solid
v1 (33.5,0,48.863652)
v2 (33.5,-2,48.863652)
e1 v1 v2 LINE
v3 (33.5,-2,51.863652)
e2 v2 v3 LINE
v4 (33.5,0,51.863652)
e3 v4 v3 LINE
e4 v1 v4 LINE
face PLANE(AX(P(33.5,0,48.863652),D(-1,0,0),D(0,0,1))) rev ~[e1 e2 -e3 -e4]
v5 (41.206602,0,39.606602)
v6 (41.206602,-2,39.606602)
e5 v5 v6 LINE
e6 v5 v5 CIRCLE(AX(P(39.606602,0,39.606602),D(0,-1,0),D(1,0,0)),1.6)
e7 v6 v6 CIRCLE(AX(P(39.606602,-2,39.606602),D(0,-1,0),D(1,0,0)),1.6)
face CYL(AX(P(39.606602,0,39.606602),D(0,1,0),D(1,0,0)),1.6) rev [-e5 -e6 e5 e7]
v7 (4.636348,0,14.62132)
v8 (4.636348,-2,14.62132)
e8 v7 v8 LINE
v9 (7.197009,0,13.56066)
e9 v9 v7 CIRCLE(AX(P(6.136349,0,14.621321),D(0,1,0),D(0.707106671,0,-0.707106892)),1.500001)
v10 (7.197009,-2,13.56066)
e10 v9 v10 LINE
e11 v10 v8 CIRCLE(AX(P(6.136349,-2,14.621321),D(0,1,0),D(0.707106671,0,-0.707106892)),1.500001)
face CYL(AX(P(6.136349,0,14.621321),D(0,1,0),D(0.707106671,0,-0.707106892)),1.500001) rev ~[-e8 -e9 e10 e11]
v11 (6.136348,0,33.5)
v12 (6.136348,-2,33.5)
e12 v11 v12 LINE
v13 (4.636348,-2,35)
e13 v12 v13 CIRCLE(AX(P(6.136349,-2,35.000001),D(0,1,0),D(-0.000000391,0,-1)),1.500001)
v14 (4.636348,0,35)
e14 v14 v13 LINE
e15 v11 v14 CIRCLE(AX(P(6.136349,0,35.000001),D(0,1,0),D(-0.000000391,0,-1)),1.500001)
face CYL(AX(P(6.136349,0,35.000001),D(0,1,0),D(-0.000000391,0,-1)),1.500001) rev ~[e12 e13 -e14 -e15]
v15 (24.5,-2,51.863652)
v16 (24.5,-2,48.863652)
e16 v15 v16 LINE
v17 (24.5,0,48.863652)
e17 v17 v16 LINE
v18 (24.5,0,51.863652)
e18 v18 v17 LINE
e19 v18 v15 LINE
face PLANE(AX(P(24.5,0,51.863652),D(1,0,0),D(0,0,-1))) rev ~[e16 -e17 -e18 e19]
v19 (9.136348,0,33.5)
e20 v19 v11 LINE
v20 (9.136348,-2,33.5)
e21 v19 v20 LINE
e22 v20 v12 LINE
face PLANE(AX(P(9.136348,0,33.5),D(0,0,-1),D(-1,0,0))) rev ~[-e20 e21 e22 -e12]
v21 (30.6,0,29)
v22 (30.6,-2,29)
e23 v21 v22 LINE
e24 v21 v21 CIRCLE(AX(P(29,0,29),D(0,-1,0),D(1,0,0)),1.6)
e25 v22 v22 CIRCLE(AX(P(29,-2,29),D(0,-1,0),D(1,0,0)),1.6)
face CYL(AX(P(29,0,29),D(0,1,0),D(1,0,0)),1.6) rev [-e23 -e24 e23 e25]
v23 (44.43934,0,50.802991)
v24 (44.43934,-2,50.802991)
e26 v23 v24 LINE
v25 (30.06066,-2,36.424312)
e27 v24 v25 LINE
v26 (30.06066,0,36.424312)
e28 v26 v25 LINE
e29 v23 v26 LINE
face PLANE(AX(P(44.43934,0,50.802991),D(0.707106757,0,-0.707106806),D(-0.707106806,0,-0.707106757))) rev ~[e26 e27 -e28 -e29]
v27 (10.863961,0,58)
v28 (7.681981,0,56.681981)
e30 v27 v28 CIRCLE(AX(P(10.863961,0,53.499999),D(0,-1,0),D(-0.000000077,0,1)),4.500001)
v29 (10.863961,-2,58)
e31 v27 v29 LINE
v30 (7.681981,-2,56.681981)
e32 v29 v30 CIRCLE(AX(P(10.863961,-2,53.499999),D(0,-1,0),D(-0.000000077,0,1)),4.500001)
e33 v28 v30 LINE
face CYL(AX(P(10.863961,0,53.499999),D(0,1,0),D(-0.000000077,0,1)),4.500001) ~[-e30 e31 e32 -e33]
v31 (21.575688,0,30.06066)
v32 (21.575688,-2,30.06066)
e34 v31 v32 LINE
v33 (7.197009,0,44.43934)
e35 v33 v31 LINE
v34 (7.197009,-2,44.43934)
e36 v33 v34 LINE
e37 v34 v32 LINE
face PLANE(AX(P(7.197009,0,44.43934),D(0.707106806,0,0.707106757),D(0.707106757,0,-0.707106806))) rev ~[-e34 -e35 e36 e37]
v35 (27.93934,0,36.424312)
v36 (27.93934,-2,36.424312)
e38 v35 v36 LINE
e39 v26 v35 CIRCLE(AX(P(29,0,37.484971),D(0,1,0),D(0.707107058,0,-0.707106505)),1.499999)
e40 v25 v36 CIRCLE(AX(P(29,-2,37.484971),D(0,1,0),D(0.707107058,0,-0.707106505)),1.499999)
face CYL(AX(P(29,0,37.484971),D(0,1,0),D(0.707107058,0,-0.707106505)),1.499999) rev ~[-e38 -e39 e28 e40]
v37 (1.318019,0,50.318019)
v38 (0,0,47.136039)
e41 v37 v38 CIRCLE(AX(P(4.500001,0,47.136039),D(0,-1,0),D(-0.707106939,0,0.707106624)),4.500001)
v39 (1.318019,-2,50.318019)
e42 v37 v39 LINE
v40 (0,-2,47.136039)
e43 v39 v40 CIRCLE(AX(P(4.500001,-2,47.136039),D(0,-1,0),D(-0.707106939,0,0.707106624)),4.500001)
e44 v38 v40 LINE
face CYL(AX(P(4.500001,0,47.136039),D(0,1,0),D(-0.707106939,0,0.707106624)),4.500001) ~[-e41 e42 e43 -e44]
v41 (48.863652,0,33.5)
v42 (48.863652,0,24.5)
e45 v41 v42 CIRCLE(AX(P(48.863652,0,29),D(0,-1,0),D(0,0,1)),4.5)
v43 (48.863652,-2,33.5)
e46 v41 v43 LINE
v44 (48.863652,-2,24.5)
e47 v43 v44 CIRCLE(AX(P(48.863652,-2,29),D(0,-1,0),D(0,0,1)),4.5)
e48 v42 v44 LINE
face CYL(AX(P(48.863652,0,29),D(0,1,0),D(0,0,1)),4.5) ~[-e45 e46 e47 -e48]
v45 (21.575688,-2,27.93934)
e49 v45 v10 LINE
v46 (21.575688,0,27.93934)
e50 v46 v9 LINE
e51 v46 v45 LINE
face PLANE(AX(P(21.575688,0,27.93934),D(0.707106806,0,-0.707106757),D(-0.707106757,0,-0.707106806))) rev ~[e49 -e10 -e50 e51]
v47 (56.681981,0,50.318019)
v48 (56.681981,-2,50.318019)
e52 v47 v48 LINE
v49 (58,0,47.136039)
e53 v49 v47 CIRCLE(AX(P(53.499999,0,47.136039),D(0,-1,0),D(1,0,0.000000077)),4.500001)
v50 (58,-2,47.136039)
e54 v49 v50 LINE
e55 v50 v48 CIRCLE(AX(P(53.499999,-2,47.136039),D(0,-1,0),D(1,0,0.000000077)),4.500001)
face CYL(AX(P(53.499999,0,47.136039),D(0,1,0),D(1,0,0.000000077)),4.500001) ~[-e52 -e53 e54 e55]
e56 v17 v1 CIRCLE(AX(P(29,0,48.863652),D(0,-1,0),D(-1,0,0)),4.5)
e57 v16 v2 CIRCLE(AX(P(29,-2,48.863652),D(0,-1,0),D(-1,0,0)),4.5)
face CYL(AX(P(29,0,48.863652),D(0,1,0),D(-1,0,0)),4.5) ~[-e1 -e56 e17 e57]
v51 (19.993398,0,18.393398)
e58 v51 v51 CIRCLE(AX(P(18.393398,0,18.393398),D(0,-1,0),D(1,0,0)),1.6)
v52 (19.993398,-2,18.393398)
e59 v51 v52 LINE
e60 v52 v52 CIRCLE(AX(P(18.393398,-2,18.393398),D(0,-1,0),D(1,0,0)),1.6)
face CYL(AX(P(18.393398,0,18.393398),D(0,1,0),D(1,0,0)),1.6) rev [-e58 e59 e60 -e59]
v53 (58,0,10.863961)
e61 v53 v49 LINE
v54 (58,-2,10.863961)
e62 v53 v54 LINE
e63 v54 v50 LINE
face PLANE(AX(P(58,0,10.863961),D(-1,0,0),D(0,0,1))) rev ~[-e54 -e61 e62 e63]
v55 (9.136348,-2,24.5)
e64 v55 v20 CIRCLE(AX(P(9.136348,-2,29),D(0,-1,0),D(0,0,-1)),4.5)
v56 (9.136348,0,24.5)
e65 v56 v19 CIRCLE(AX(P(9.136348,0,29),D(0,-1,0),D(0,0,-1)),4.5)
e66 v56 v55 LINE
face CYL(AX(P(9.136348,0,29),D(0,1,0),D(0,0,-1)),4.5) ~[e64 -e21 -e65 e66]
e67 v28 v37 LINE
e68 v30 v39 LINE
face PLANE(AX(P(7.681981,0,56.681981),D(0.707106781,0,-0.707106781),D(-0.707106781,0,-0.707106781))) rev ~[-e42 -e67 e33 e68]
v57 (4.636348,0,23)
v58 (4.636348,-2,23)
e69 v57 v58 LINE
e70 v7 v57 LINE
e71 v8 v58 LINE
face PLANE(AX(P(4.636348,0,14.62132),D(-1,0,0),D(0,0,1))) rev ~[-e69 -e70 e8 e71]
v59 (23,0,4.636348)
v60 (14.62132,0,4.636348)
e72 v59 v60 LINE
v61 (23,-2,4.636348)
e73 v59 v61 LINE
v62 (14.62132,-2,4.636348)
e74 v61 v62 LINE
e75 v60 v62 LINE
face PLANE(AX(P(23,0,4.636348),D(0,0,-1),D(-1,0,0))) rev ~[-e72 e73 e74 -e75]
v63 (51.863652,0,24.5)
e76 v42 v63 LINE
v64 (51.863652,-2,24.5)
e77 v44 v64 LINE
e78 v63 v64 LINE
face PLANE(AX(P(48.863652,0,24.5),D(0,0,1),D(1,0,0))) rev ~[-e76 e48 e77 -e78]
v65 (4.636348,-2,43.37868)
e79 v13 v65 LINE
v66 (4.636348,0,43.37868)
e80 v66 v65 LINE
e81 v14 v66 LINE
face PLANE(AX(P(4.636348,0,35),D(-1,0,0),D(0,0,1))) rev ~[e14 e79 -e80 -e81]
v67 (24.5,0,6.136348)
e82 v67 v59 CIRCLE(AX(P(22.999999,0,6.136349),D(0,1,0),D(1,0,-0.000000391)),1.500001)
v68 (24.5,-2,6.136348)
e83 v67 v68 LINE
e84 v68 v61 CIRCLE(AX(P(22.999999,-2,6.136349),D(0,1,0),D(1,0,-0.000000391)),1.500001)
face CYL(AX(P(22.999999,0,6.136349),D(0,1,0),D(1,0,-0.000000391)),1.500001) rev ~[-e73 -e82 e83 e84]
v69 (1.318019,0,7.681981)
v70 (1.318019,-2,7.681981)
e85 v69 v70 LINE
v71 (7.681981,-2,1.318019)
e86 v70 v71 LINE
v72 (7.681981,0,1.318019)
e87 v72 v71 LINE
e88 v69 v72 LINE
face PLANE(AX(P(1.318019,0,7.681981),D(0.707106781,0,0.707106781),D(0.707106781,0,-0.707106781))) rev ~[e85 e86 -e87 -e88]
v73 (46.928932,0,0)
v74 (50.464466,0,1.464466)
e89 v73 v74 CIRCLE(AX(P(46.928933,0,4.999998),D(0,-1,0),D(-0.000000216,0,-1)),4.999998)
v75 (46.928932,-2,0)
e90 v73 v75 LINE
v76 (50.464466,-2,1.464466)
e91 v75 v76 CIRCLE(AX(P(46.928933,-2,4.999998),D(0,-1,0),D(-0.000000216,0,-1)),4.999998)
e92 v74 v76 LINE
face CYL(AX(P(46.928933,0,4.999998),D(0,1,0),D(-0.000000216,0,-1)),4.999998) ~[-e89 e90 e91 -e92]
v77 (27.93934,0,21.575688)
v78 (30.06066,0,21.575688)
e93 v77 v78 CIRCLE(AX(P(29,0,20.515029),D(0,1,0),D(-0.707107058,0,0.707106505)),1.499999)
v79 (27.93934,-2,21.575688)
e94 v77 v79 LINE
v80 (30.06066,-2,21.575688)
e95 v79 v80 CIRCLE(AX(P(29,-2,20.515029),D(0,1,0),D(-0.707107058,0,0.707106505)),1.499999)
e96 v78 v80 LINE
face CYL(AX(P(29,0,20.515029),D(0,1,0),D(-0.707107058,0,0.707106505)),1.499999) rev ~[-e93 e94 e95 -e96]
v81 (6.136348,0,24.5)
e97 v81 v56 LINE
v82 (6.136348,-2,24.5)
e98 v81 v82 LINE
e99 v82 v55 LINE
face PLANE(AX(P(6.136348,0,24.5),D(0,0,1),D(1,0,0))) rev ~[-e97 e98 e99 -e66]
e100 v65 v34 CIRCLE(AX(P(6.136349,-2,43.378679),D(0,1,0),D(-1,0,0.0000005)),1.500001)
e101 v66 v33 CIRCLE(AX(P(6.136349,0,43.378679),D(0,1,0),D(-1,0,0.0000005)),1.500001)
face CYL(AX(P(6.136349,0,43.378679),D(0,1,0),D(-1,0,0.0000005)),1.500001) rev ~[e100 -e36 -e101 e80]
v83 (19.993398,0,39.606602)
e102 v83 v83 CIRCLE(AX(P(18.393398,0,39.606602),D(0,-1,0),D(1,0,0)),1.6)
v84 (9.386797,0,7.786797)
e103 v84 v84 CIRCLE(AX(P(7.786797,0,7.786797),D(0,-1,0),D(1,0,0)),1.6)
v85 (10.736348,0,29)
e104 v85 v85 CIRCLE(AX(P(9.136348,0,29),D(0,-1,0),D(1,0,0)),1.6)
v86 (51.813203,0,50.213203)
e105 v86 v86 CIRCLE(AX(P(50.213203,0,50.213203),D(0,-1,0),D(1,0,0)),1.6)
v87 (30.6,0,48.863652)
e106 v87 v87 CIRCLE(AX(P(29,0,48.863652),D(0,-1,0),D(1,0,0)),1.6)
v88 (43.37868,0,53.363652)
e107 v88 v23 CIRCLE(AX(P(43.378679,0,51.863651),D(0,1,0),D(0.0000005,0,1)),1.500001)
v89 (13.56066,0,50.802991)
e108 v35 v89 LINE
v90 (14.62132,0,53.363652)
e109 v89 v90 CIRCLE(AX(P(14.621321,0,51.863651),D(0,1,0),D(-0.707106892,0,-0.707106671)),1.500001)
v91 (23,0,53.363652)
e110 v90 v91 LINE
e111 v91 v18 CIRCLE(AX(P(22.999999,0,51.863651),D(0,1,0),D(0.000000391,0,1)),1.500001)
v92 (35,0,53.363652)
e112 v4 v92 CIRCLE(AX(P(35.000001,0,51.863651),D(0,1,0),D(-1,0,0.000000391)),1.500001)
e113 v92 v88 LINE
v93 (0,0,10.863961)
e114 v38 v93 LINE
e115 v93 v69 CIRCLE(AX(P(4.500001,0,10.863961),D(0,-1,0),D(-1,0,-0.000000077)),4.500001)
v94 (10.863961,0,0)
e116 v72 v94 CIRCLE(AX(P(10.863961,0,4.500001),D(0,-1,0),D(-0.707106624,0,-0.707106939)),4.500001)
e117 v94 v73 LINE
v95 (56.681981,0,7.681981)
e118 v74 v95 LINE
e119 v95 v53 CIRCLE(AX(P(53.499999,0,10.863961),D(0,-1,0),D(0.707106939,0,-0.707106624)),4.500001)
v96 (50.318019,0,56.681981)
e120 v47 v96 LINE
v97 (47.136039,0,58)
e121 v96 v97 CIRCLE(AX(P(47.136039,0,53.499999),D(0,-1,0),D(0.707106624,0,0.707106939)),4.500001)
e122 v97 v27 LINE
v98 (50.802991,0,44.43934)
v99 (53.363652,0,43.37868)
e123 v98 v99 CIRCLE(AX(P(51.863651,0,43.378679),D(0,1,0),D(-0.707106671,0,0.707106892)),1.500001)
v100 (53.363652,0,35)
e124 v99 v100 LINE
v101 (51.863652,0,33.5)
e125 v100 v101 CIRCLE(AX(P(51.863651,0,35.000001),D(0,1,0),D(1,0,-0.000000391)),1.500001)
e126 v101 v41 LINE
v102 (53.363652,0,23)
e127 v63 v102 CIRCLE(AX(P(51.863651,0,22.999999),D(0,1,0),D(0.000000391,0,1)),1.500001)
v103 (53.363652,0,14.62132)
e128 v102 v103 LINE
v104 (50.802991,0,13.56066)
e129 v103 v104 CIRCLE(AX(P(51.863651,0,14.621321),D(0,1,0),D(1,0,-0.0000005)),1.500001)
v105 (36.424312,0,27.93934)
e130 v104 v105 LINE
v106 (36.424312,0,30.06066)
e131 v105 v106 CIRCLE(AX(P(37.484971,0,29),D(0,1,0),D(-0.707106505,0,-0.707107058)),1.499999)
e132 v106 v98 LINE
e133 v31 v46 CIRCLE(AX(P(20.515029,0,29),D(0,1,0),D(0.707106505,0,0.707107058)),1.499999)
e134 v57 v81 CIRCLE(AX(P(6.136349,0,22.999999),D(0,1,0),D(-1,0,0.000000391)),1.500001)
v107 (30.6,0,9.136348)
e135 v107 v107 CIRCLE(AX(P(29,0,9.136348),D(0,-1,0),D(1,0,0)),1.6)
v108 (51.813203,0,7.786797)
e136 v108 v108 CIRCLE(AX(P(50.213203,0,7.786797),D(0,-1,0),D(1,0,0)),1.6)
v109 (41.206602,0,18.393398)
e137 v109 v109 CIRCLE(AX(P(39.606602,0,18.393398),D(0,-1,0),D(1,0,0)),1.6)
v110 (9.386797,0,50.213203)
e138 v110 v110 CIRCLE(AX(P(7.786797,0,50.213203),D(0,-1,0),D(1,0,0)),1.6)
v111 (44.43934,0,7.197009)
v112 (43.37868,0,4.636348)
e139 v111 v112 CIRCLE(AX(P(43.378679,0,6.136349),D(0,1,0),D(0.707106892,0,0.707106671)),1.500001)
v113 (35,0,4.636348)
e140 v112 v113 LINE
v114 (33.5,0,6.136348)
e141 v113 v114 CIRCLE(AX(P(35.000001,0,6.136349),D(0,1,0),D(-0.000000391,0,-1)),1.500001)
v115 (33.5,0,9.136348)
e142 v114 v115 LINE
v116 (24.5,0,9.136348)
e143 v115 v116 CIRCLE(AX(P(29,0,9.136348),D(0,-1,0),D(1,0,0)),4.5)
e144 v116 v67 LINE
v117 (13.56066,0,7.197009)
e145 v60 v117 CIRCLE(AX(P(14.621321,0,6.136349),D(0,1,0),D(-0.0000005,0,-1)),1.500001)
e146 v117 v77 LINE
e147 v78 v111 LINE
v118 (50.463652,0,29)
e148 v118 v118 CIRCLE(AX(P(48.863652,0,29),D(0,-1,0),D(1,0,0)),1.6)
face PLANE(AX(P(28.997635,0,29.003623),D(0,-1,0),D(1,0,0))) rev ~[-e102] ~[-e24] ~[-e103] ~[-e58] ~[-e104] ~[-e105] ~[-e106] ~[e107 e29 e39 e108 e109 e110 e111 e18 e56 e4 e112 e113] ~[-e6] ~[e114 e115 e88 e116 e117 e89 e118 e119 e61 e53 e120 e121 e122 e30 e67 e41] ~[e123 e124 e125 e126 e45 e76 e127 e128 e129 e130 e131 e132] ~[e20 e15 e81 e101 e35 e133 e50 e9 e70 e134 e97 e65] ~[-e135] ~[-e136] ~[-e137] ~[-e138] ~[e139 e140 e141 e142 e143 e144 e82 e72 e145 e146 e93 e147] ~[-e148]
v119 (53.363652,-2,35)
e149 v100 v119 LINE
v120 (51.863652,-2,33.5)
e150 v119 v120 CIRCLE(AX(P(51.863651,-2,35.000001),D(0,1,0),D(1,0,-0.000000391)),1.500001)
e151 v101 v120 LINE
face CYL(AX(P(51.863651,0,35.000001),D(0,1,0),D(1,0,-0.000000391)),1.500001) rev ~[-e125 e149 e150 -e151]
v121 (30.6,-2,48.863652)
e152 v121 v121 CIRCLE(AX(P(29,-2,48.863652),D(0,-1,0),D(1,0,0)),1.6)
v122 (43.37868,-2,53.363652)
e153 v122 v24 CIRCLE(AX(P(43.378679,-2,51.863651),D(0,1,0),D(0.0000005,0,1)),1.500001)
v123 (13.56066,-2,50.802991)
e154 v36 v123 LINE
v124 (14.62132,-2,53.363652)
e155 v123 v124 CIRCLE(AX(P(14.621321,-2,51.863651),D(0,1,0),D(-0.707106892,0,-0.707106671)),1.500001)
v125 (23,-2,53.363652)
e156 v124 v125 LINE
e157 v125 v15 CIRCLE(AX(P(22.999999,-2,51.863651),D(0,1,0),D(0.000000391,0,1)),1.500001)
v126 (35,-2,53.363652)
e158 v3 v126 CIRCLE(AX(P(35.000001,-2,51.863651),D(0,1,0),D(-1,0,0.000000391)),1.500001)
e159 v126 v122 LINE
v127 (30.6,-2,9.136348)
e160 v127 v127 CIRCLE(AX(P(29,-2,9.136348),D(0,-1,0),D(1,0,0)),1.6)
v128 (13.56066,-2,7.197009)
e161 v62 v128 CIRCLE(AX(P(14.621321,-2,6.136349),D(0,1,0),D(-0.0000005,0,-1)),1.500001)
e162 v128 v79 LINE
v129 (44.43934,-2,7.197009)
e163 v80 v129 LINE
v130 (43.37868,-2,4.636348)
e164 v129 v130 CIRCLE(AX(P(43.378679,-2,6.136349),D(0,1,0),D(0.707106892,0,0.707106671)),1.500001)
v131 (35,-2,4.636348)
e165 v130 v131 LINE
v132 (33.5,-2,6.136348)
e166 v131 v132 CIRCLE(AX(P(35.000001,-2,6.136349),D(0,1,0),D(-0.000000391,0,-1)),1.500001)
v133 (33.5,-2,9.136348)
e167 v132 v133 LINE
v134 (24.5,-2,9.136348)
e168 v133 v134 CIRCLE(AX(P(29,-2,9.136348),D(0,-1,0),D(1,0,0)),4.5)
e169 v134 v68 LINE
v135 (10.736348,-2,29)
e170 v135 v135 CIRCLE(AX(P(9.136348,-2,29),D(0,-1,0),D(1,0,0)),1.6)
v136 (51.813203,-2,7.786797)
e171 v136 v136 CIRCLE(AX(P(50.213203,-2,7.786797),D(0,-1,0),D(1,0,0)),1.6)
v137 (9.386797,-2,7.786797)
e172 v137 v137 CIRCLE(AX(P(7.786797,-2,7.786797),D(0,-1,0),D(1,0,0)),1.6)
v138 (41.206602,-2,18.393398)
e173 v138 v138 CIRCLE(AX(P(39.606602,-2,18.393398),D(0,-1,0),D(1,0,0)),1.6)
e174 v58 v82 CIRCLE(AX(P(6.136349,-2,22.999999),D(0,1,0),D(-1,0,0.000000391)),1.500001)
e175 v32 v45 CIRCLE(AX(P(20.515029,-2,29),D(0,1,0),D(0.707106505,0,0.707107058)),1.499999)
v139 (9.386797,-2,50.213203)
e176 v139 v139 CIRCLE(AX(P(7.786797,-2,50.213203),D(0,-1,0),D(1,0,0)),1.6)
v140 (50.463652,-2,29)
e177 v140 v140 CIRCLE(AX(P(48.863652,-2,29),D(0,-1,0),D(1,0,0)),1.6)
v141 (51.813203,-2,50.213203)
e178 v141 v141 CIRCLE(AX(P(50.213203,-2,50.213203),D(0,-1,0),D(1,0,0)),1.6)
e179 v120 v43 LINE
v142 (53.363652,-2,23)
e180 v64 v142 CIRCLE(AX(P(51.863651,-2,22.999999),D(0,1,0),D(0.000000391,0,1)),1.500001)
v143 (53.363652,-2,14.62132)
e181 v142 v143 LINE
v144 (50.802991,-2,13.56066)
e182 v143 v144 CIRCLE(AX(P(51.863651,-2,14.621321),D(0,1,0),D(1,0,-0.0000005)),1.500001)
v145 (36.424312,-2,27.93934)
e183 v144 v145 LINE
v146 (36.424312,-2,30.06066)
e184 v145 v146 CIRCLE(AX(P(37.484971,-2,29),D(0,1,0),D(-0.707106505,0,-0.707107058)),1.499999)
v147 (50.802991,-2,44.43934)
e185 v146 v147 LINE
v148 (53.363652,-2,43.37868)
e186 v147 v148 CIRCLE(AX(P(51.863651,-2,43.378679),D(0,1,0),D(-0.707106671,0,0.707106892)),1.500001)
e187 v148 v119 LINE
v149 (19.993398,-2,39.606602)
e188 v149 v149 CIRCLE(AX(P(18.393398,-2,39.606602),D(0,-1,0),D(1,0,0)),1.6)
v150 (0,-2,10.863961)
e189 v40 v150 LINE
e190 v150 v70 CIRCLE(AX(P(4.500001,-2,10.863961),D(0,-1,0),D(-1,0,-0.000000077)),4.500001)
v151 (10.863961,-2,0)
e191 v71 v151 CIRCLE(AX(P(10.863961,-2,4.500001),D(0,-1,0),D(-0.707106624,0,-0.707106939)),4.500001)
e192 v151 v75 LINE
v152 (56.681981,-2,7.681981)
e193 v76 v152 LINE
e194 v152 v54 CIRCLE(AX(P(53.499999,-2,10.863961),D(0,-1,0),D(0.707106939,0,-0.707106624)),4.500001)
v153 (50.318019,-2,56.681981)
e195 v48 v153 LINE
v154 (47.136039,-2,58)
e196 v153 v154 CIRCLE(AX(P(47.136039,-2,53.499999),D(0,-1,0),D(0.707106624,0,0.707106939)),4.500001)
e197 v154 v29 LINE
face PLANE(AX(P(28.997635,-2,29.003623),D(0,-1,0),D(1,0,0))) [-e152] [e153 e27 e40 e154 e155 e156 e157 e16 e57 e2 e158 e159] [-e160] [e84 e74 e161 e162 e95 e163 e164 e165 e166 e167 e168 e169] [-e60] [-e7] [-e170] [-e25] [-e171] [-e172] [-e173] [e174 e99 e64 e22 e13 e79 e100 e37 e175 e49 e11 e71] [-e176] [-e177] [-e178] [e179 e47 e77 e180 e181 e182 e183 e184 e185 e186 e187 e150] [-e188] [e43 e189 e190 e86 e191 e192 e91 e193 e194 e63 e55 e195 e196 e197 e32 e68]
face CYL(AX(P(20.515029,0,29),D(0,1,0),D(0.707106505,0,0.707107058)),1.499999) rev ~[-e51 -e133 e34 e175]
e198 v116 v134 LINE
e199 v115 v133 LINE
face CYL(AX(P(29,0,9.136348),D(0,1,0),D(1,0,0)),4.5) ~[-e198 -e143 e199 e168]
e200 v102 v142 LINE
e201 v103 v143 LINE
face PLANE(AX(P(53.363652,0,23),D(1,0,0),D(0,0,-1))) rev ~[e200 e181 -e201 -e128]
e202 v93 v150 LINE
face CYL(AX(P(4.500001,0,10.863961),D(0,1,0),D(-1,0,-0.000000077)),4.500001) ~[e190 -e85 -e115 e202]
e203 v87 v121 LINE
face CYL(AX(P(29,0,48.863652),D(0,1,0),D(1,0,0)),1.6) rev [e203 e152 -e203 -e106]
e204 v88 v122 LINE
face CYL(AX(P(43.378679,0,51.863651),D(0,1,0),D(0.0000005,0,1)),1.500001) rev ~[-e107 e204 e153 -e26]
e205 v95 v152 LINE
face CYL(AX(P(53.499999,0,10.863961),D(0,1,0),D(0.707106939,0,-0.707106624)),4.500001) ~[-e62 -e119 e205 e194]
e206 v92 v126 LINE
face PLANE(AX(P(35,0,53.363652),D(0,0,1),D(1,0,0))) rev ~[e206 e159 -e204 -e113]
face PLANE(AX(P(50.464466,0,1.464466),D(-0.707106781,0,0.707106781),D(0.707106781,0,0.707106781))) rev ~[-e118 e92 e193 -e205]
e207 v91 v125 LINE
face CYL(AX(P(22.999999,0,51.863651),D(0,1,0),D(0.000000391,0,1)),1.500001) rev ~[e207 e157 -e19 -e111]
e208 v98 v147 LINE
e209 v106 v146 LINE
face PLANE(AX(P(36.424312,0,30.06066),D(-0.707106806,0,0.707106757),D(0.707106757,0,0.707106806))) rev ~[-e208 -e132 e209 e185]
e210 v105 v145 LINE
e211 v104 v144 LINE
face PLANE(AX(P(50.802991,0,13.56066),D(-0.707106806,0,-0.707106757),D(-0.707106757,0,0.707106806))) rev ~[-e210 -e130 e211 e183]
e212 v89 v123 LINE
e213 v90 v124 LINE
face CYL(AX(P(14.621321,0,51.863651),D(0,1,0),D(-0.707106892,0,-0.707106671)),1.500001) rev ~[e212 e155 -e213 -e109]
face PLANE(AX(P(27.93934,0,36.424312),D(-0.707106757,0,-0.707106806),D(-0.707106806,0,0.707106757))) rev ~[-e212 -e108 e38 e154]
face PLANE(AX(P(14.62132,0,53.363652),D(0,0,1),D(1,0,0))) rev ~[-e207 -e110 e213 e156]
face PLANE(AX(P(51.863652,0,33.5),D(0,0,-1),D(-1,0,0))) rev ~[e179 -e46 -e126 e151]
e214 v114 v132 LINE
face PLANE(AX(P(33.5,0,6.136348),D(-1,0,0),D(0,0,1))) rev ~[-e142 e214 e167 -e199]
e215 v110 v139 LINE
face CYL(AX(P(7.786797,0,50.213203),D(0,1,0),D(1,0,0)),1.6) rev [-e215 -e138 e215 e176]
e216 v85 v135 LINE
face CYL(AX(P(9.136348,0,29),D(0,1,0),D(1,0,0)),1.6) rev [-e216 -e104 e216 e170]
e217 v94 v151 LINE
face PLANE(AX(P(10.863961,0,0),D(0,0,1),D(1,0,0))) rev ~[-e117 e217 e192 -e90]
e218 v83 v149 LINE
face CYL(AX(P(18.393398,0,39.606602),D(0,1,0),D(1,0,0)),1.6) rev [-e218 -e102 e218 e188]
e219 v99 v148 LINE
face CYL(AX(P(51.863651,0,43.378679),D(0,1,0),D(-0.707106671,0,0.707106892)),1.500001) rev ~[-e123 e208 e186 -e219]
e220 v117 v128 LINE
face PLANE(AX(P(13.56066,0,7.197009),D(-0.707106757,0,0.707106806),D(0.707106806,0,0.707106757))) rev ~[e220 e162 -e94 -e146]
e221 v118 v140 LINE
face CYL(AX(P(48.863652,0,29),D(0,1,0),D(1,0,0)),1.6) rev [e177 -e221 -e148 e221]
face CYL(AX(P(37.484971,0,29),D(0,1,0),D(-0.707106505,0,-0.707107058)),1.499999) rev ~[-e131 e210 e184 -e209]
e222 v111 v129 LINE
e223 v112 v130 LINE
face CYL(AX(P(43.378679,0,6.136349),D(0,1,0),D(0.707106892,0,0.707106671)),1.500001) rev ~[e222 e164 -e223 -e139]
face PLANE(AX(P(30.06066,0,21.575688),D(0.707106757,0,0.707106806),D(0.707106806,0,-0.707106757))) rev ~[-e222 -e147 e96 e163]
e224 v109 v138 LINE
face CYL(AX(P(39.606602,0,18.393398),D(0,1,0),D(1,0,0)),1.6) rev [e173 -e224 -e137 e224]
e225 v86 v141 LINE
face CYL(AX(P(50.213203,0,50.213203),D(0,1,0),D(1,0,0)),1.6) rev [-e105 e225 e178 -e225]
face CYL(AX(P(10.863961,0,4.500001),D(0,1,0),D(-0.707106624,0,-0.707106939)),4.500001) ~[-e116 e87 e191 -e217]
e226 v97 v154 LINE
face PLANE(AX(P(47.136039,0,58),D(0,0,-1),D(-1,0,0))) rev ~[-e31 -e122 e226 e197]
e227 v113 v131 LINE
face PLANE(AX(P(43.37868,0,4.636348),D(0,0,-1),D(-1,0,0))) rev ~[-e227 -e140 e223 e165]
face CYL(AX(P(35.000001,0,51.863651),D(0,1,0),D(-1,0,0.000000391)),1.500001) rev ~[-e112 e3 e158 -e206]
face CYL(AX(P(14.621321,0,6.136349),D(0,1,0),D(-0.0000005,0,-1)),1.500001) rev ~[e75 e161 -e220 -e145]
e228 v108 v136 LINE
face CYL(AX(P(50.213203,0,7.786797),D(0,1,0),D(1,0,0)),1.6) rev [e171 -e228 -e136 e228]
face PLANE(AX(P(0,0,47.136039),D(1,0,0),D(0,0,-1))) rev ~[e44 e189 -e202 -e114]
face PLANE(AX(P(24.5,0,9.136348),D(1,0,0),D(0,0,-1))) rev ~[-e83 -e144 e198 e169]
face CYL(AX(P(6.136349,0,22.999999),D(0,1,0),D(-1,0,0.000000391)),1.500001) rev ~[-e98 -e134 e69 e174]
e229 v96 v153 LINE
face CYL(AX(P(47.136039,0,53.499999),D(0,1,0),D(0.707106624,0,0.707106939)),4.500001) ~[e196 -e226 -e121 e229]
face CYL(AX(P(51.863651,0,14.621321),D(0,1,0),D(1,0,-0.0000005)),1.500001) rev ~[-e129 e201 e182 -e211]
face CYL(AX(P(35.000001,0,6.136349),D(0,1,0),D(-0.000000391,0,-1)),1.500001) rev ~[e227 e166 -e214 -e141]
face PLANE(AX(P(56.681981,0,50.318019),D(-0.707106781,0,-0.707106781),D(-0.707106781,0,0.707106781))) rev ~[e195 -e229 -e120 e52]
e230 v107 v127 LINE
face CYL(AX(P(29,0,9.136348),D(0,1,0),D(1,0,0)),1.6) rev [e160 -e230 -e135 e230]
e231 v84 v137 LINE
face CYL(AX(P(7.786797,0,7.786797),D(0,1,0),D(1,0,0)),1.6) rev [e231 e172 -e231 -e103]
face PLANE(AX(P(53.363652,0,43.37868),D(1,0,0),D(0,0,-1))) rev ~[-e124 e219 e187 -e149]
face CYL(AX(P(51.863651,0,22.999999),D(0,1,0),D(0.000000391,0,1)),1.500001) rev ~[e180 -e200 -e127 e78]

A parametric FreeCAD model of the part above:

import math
import FreeCAD as App
import Part
import Sketcher

doc = App.newDocument("Part")
body = doc.addObject("PartDesign::Body", "Body")

# Sketch on XZ plane
sketch1 = body.newObject("Sketcher::SketchObject", "Sketch")
sketch1.AttachmentSupport = (doc.getObject("XZ_Plane"), [""])
sketch1.MapMode = "FlatFace"
sketch1.addGeometry(Part.LineSegment(App.Vector(47.1, 58, 0), App.Vector(10.9, 58, 0)), False)
sketch1.addGeometry(Part.ArcOfCircle(Part.Circle(App.Vector(10.9, 53.5, 0), App.Vector(0, 0, 1), 4.5), math.radians(90), math.radians(135)), False)
sketch1.addGeometry(Part.LineSegment(App.Vector(7.7, 56.7, 0), App.Vector(1.3, 50.3, 0)), False)
sketch1.addGeometry(Part.ArcOfCircle(Part.Circle(App.Vector(4.5, 47.1, 0), App.Vector(0, 0, 1), 4.5), math.radians(135), math.radians(180)), False)
sketch1.addGeometry(Part.LineSegment(App.Vector(0, 47.1, 0), App.Vector(0, 10.9, 0)), False)
sketch1.addGeometry(Part.ArcOfCircle(Part.Circle(App.Vector(4.5, 10.9, 0), App.Vector(0, 0, 1), 4.5), math.radians(-180), math.radians(-135)), False)
sketch1.addGeometry(Part.LineSegment(App.Vector(1.3, 7.7, 0), App.Vector(7.7, 1.3, 0)), False)
sketch1.addGeometry(Part.ArcOfCircle(Part.Circle(App.Vector(10.9, 4.5, 0), App.Vector(0, 0, 1), 4.5), math.radians(-135), math.radians(-90)), False)
sketch1.addGeometry(Part.LineSegment(App.Vector(10.9, 0, 0), App.Vector(46.9, 0, 0)), False)
sketch1.addGeometry(Part.ArcOfCircle(Part.Circle(App.Vector(46.9, 5, 0), App.Vector(0, 0, 1), 5), math.radians(-90), math.radians(-45)), False)
sketch1.addGeometry(Part.LineSegment(App.Vector(50.5, 1.5, 0), App.Vector(56.7, 7.7, 0)), False)
sketch1.addGeometry(Part.ArcOfCircle(Part.Circle(App.Vector(53.5, 10.9, 0), App.Vector(0, 0, 1), 4.5), math.radians(-45), math.radians(0)), False)
sketch1.addGeometry(Part.LineSegment(App.Vector(58, 10.9, 0), App.Vector(58, 47.1, 0)), False)
sketch1.addGeometry(Part.ArcOfCircle(Part.Circle(App.Vector(53.5, 47.1, 0), App.Vector(0, 0, 1), 4.5), math.radians(0), math.radians(45)), False)
sketch1.addGeometry(Part.LineSegment(App.Vector(56.7, 50.3, 0), App.Vector(50.3, 56.7, 0)), False)
sketch1.addGeometry(Part.ArcOfCircle(Part.Circle(App.Vector(47.1, 53.5, 0), App.Vector(0, 0, 1), 4.5), math.radians(45), math.radians(90)), False)
sketch1.addGeometry(Part.Circle(App.Vector(7.8, 7.8, 0), App.Vector(0, 0, 1), 1.6), False)
sketch1.addGeometry(Part.Circle(App.Vector(18.4, 18.4, 0), App.Vector(0, 0, 1), 1.6), False)
sketch1.addGeometry(Part.Circle(App.Vector(29, 9.1, 0), App.Vector(0, 0, 1), 1.6), False)
sketch1.addGeometry(Part.ArcOfCircle(Part.Circle(App.Vector(35, 6.1, 0), App.Vector(0, 0, 1), 1.5), math.radians(-180), math.radians(-90)), False)
sketch1.addGeometry(Part.LineSegment(App.Vector(33.5, 6.1, 0), App.Vector(33.5, 9.1, 0)), False)
sketch1.addGeometry(Part.ArcOfCircle(Part.Circle(App.Vector(29, 9.1, 0), App.Vector(0, 0, 1), 4.5), math.radians(0), math.radians(180)), False)
sketch1.addGeometry(Part.LineSegment(App.Vector(24.5, 9.1, 0), App.Vector(24.5, 6.1, 0)), False)
sketch1.addGeometry(Part.ArcOfCircle(Part.Circle(App.Vector(23, 6.1, 0), App.Vector(0, 0, 1), 1.5), math.radians(-90), math.radians(0)), False)
sketch1.addGeometry(Part.LineSegment(App.Vector(23, 4.6, 0), App.Vector(14.6, 4.6, 0)), False)
sketch1.addGeometry(Part.ArcOfCircle(Part.Circle(App.Vector(14.6, 6.1, 0), App.Vector(0, 0, 1), 1.5), math.radians(135), math.radians(270)), False)
sketch1.addGeometry(Part.LineSegment(App.Vector(13.6, 7.2, 0), App.Vector(27.9, 21.6, 0)), False)
sketch1.addGeometry(Part.ArcOfCircle(Part.Circle(App.Vector(29, 20.5, 0), App.Vector(0, 0, 1), 1.5), math.radians(45), math.radians(135)), False)
sketch1.addGeometry(Part.LineSegment(App.Vector(30.1, 21.6, 0), App.Vector(44.4, 7.2, 0)), False)
sketch1.addGeometry(Part.ArcOfCircle(Part.Circle(App.Vector(43.4, 6.1, 0), App.Vector(0, 0, 1), 1.5), math.radians(-90), math.radians(45)), False)
sketch1.addGeometry(Part.LineSegment(App.Vector(43.4, 4.6, 0), App.Vector(35, 4.6, 0)), False)
sketch1.addGeometry(Part.Circle(App.Vector(50.2, 7.8, 0), App.Vector(0, 0, 1), 1.6), False)
sketch1.addGeometry(Part.Circle(App.Vector(39.6, 18.4, 0), App.Vector(0, 0, 1), 1.6), False)
sketch1.addGeometry(Part.Circle(App.Vector(9.1, 29, 0), App.Vector(0, 0, 1), 1.6), False)
sketch1.addGeometry(Part.LineSegment(App.Vector(21.6, 27.9, 0), App.Vector(7.2, 13.6, 0)), False)
sketch1.addGeometry(Part.ArcOfCircle(Part.Circle(App.Vector(6.1, 14.6, 0), App.Vector(0, 0, 1), 1.5), math.radians(-180), math.radians(-45)), False)
sketch1.addGeometry(Part.LineSegment(App.Vector(4.6, 14.6, 0), App.Vector(4.6, 23, 0)), False)
sketch1.addGeometry(Part.ArcOfCircle(Part.Circle(App.Vector(6.1, 23, 0), App.Vector(0, 0, 1), 1.5), math.radians(90), math.radians(180)), False)
sketch1.addGeometry(Part.LineSegment(App.Vector(6.1, 24.5, 0), App.Vector(9.1, 24.5, 0)), False)
sketch1.addGeometry(Part.ArcOfCircle(Part.Circle(App.Vector(9.1, 29, 0), App.Vector(0, 0, 1), 4.5), math.radians(-90), math.radians(90)), False)
sketch1.addGeometry(Part.LineSegment(App.Vector(9.1, 33.5, 0), App.Vector(6.1, 33.5, 0)), False)
sketch1.addGeometry(Part.ArcOfCircle(Part.Circle(App.Vector(6.1, 35, 0), App.Vector(0, 0, 1), 1.5), math.radians(-180), math.radians(-90)), False)
sketch1.addGeometry(Part.LineSegment(App.Vector(4.6, 35, 0), App.Vector(4.6, 43.4, 0)), False)
sketch1.addGeometry(Part.ArcOfCircle(Part.Circle(App.Vector(6.1, 43.4, 0), App.Vector(0, 0, 1), 1.5), math.radians(45), math.radians(180)), False)
sketch1.addGeometry(Part.LineSegment(App.Vector(7.2, 44.4, 0), App.Vector(21.6, 30.1, 0)), False)
sketch1.addGeometry(Part.ArcOfCircle(Part.Circle(App.Vector(20.5, 29, 0), App.Vector(0, 0, 1), 1.5), math.radians(-45), math.radians(45)), False)
sketch1.addGeometry(Part.Circle(App.Vector(18.4, 39.6, 0), App.Vector(0, 0, 1), 1.6), False)
sketch1.addGeometry(Part.Circle(App.Vector(7.8, 50.2, 0), App.Vector(0, 0, 1), 1.6), False)
sketch1.addGeometry(Part.Circle(App.Vector(29, 29, 0), App.Vector(0, 0, 1), 1.6), False)
sketch1.addGeometry(Part.Circle(App.Vector(39.6, 39.6, 0), App.Vector(0, 0, 1), 1.6), False)
sketch1.addGeometry(Part.LineSegment(App.Vector(36.4, 30.1, 0), App.Vector(50.8, 44.4, 0)), False)
sketch1.addGeometry(Part.ArcOfCircle(Part.Circle(App.Vector(51.9, 43.4, 0), App.Vector(0, 0, 1), 1.5), math.radians(0), math.radians(135)), False)
sketch1.addGeometry(Part.LineSegment(App.Vector(53.4, 43.4, 0), App.Vector(53.4, 35, 0)), False)
sketch1.addGeometry(Part.ArcOfCircle(Part.Circle(App.Vector(51.9, 35, 0), App.Vector(0, 0, 1), 1.5), math.radians(-90), math.radians(0)), False)
sketch1.addGeometry(Part.LineSegment(App.Vector(51.9, 33.5, 0), App.Vector(48.9, 33.5, 0)), False)
sketch1.addGeometry(Part.ArcOfCircle(Part.Circle(App.Vector(48.9, 29, 0), App.Vector(0, 0, 1), 4.5), math.radians(90), math.radians(270)), False)
sketch1.addGeometry(Part.LineSegment(App.Vector(48.9, 24.5, 0), App.Vector(51.9, 24.5, 0)), False)
sketch1.addGeometry(Part.ArcOfCircle(Part.Circle(App.Vector(51.9, 23, 0), App.Vector(0, 0, 1), 1.5), math.radians(0), math.radians(90)), False)
sketch1.addGeometry(Part.LineSegment(App.Vector(53.4, 23, 0), App.Vector(53.4, 14.6, 0)), False)
sketch1.addGeometry(Part.ArcOfCircle(Part.Circle(App.Vector(51.9, 14.6, 0), App.Vector(0, 0, 1), 1.5), math.radians(-135), math.radians(0)), False)
sketch1.addGeometry(Part.LineSegment(App.Vector(50.8, 13.6, 0), App.Vector(36.4, 27.9, 0)), False)
sketch1.addGeometry(Part.ArcOfCircle(Part.Circle(App.Vector(37.5, 29, 0), App.Vector(0, 0, 1), 1.5), math.radians(135), math.radians(225)), False)
sketch1.addGeometry(Part.Circle(App.Vector(48.9, 29, 0), App.Vector(0, 0, 1), 1.6), False)
sketch1.addGeometry(Part.LineSegment(App.Vector(27.9, 36.4, 0), App.Vector(13.6, 50.8, 0)), False)
sketch1.addGeometry(Part.ArcOfCircle(Part.Circle(App.Vector(14.6, 51.9, 0), App.Vector(0, 0, 1), 1.5), math.radians(90), math.radians(225)), False)
sketch1.addGeometry(Part.LineSegment(App.Vector(14.6, 53.4, 0), App.Vector(23, 53.4, 0)), False)
sketch1.addGeometry(Part.ArcOfCircle(Part.Circle(App.Vector(23, 51.9, 0), App.Vector(0, 0, 1), 1.5), math.radians(0), math.radians(90)), False)
sketch1.addGeometry(Part.LineSegment(App.Vector(24.5, 51.9, 0), App.Vector(24.5, 48.9, 0)), False)
sketch1.addGeometry(Part.ArcOfCircle(Part.Circle(App.Vector(29, 48.9, 0), App.Vector(0, 0, 1), 4.5), math.radians(180), math.radians(360)), False)
sketch1.addGeometry(Part.LineSegment(App.Vector(33.5, 48.9, 0), App.Vector(33.5, 51.9, 0)), False)
sketch1.addGeometry(Part.ArcOfCircle(Part.Circle(App.Vector(35, 51.9, 0), App.Vector(0, 0, 1), 1.5), math.radians(90), math.radians(180)), False)
sketch1.addGeometry(Part.LineSegment(App.Vector(35, 53.4, 0), App.Vector(43.4, 53.4, 0)), False)
sketch1.addGeometry(Part.ArcOfCircle(Part.Circle(App.Vector(43.4, 51.9, 0), App.Vector(0, 0, 1), 1.5), math.radians(-45), math.radians(90)), False)
sketch1.addGeometry(Part.LineSegment(App.Vector(44.4, 50.8, 0), App.Vector(30.1, 36.4, 0)), False)
sketch1.addGeometry(Part.ArcOfCircle(Part.Circle(App.Vector(29, 37.5, 0), App.Vector(0, 0, 1), 1.5), math.radians(-135), math.radians(-45)), False)
sketch1.addGeometry(Part.Circle(App.Vector(29, 48.9, 0), App.Vector(0, 0, 1), 1.6), False)
sketch1.addGeometry(Part.Circle(App.Vector(50.2, 50.2, 0), App.Vector(0, 0, 1), 1.6), False)
sketch1.addConstraint(Sketcher.Constraint("Tangent", 0, 2, 1, 1))
sketch1.addConstraint(Sketcher.Constraint("Tangent", 1, 2, 2, 1))
sketch1.addConstraint(Sketcher.Constraint("Tangent", 2, 2, 3, 1))
sketch1.addConstraint(Sketcher.Constraint("Tangent", 3, 2, 4, 1))
sketch1.addConstraint(Sketcher.Constraint("Tangent", 4, 2, 5, 1))
sketch1.addConstraint(Sketcher.Constraint("Tangent", 5, 2, 6, 1))
sketch1.addConstraint(Sketcher.Constraint("Tangent", 6, 2, 7, 1))
sketch1.addConstraint(Sketcher.Constraint("Tangent", 7, 2, 8, 1))
sketch1.addConstraint(Sketcher.Constraint("Tangent", 8, 2, 9, 1))
sketch1.addConstraint(Sketcher.Constraint("Tangent", 9, 2, 10, 1))
sketch1.addConstraint(Sketcher.Constraint("Tangent", 10, 2, 11, 1))
sketch1.addConstraint(Sketcher.Constraint("Tangent", 11, 2, 12, 1))
sketch1.addConstraint(Sketcher.Constraint("Tangent", 12, 2, 13, 1))
sketch1.addConstraint(Sketcher.Constraint("Tangent", 13, 2, 14, 1))
sketch1.addConstraint(Sketcher.Constraint("Tangent", 14, 2, 15, 1))
sketch1.addConstraint(Sketcher.Constraint("Tangent", 15, 2, 0, 1))
sketch1.addConstraint(Sketcher.Constraint("Tangent", 19, 1, 20, 1))
sketch1.addConstraint(Sketcher.Constraint("Tangent", 20, 2, 21, 1))
sketch1.addConstraint(Sketcher.Constraint("Tangent", 21, 2, 22, 1))
sketch1.addConstraint(Sketcher.Constraint("Tangent", 22, 2, 23, 2))
sketch1.addConstraint(Sketcher.Constraint("Tangent", 23, 1, 24, 1))
sketch1.addConstraint(Sketcher.Constraint("Tangent", 24, 2, 25, 2))
sketch1.addConstraint(Sketcher.Constraint("Tangent", 25, 1, 26, 1))
sketch1.addConstraint(Sketcher.Constraint("Tangent", 26, 2, 27, 2))
sketch1.addConstraint(Sketcher.Constraint("Tangent", 27, 1, 28, 1))
sketch1.addConstraint(Sketcher.Constraint("Tangent", 28, 2, 29, 2))
sketch1.addConstraint(Sketcher.Constraint("Tangent", 29, 1, 30, 1))
sketch1.addConstraint(Sketcher.Constraint("Tangent", 30, 2, 19, 2))
sketch1.addConstraint(Sketcher.Constraint("Tangent", 34, 2, 35, 2))
sketch1.addConstraint(Sketcher.Constraint("Tangent", 35, 1, 36, 1))
sketch1.addConstraint(Sketcher.Constraint("Tangent", 36, 2, 37, 2))
sketch1.addConstraint(Sketcher.Constraint("Tangent", 37, 1, 38, 1))
sketch1.addConstraint(Sketcher.Constraint("Tangent", 38, 2, 39, 1))
sketch1.addConstraint(Sketcher.Constraint("Tangent", 39, 2, 40, 1))
sketch1.addConstraint(Sketcher.Constraint("Tangent", 40, 2, 41, 2))
sketch1.addConstraint(Sketcher.Constraint("Tangent", 41, 1, 42, 1))
sketch1.addConstraint(Sketcher.Constraint("Tangent", 42, 2, 43, 2))
sketch1.addConstraint(Sketcher.Constraint("Tangent", 43, 1, 44, 1))
sketch1.addConstraint(Sketcher.Constraint("Tangent", 44, 2, 45, 2))
sketch1.addConstraint(Sketcher.Constraint("Tangent", 45, 1, 34, 1))
sketch1.addConstraint(Sketcher.Constraint("Tangent", 50, 2, 51, 2))
sketch1.addConstraint(Sketcher.Constraint("Tangent", 51, 1, 52, 1))
sketch1.addConstraint(Sketcher.Constraint("Tangent", 52, 2, 53, 2))
sketch1.addConstraint(Sketcher.Constraint("Tangent", 53, 1, 54, 1))
sketch1.addConstraint(Sketcher.Constraint("Tangent", 54, 2, 55, 1))
sketch1.addConstraint(Sketcher.Constraint("Tangent", 55, 2, 56, 1))
sketch1.addConstraint(Sketcher.Constraint("Tangent", 56, 2, 57, 2))
sketch1.addConstraint(Sketcher.Constraint("Tangent", 57, 1, 58, 1))
sketch1.addConstraint(Sketcher.Constraint("Tangent", 58, 2, 59, 2))
sketch1.addConstraint(Sketcher.Constraint("Tangent", 59, 1, 60, 1))
sketch1.addConstraint(Sketcher.Constraint("Tangent", 60, 2, 61, 2))
sketch1.addConstraint(Sketcher.Constraint("Tangent", 61, 1, 50, 1))
sketch1.addConstraint(Sketcher.Constraint("Tangent", 63, 2, 64, 2))
sketch1.addConstraint(Sketcher.Constraint("Tangent", 64, 1, 65, 1))
sketch1.addConstraint(Sketcher.Constraint("Tangent", 65, 2, 66, 2))
sketch1.addConstraint(Sketcher.Constraint("Tangent", 66, 1, 67, 1))
sketch1.addConstraint(Sketcher.Constraint("Tangent", 67, 2, 68, 1))
sketch1.addConstraint(Sketcher.Constraint("Tangent", 68, 2, 69, 1))
sketch1.addConstraint(Sketcher.Constraint("Tangent", 69, 2, 70, 2))
sketch1.addConstraint(Sketcher.Constraint("Tangent", 70, 1, 71, 1))
sketch1.addConstraint(Sketcher.Constraint("Tangent", 71, 2, 72, 2))
sketch1.addConstraint(Sketcher.Constraint("Tangent", 72, 1, 73, 1))
sketch1.addConstraint(Sketcher.Constraint("Tangent", 73, 2, 74, 2))
sketch1.addConstraint(Sketcher.Constraint("Tangent", 74, 1, 63, 1))
sketch1.addConstraint(Sketcher.Constraint("Horizontal", 0))
sketch1.addConstraint(Sketcher.Constraint("Vertical", 4))
sketch1.addConstraint(Sketcher.Constraint("Horizontal", 8))
sketch1.addConstraint(Sketcher.Constraint("Vertical", 12))
sketch1.addConstraint(Sketcher.Constraint("Vertical", 20))
sketch1.addConstraint(Sketcher.Constraint("Vertical", 22))
sketch1.addConstraint(Sketcher.Constraint("Horizontal", 24))
sketch1.addConstraint(Sketcher.Constraint("Horizontal", 30))
sketch1.addConstraint(Sketcher.Constraint("Vertical", 36))
sketch1.addConstraint(Sketcher.Constraint("Horizontal", 38))
sketch1.addConstraint(Sketcher.Constraint("Horizontal", 40))
sketch1.addConstraint(Sketcher.Constraint("Vertical", 42))
sketch1.addConstraint(Sketcher.Constraint("Vertical", 52))
sketch1.addConstraint(Sketcher.Constraint("Horizontal", 54))
sketch1.addConstraint(Sketcher.Constraint("Horizontal", 56))
sketch1.addConstraint(Sketcher.Constraint("Vertical", 58))
sketch1.addConstraint(Sketcher.Constraint("Horizontal", 65))
sketch1.addConstraint(Sketcher.Constraint("Vertical", 67))
sketch1.addConstraint(Sketcher.Constraint("Vertical", 69))
sketch1.addConstraint(Sketcher.Constraint("Horizontal", 71))
sketch1.addConstraint(Sketcher.Constraint("Coincident", 21, 3, 18, 3))
sketch1.addConstraint(Sketcher.Constraint("Coincident", 39, 3, 33, 3))
sketch1.addConstraint(Sketcher.Constraint("Coincident", 62, 3, 55, 3))
sketch1.addConstraint(Sketcher.Constraint("Coincident", 75, 3, 68, 3))
sketch1.addConstraint(Sketcher.Constraint("Equal", 1, 3))
sketch1.addConstraint(Sketcher.Constraint("Equal", 3, 5))
sketch1.addConstraint(Sketcher.Constraint("Equal", 5, 7))
sketch1.addConstraint(Sketcher.Constraint("Equal", 7, 11))
sketch1.addConstraint(Sketcher.Constraint("Equal", 11, 13))
sketch1.addConstraint(Sketcher.Constraint("Equal", 13, 15))
sketch1.addConstraint(Sketcher.Constraint("Equal", 16, 17))
sketch1.addConstraint(Sketcher.Constraint("Equal", 17, 18))
sketch1.addConstraint(Sketcher.Constraint("Equal", 15, 21))
sketch1.addConstraint(Sketcher.Constraint("Equal", 19, 23))
sketch1.addConstraint(Sketcher.Constraint("Equal", 23, 25))
sketch1.addConstraint(Sketcher.Constraint("Equal", 25, 27))
sketch1.addConstraint(Sketcher.Constraint("Equal", 27, 29))
sketch1.addConstraint(Sketcher.Constraint("Equal", 18, 31))
sketch1.addConstraint(Sketcher.Constraint("Equal", 31, 32))
sketch1.addConstraint(Sketcher.Constraint("Equal", 32, 33))
sketch1.addConstraint(Sketcher.Constraint("Equal", 29, 35))
sketch1.addConstraint(Sketcher.Constraint("Equal", 35, 37))
sketch1.addConstraint(Sketcher.Constraint("Equal", 21, 39))
sketch1.addConstraint(Sketcher.Constraint("Equal", 37, 41))
sketch1.addConstraint(Sketcher.Constraint("Equal", 41, 43))
sketch1.addConstraint(Sketcher.Constraint("Equal", 43, 45))
sketch1.addConstraint(Sketcher.Constraint("Equal", 33, 46))
sketch1.addConstraint(Sketcher.Constraint("Equal", 46, 47))
sketch1.addConstraint(Sketcher.Constraint("Equal", 47, 48))
sketch1.addConstraint(Sketcher.Constraint("Equal", 48, 49))
sketch1.addConstraint(Sketcher.Constraint("Equal", 45, 51))
sketch1.addConstraint(Sketcher.Constraint("Equal", 51, 53))
sketch1.addConstraint(Sketcher.Constraint("Equal", 39, 55))
sketch1.addConstraint(Sketcher.Constraint("Equal", 53, 57))
sketch1.addConstraint(Sketcher.Constraint("Equal", 57, 59))
sketch1.addConstraint(Sketcher.Constraint("Equal", 59, 61))
sketch1.addConstraint(Sketcher.Constraint("Equal", 49, 62))
sketch1.addConstraint(Sketcher.Constraint("Equal", 61, 64))
sketch1.addConstraint(Sketcher.Constraint("Equal", 64, 66))
sketch1.addConstraint(Sketcher.Constraint("Equal", 55, 68))
sketch1.addConstraint(Sketcher.Constraint("Equal", 66, 70))
sketch1.addConstraint(Sketcher.Constraint("Equal", 70, 72))
sketch1.addConstraint(Sketcher.Constraint("Equal", 72, 74))
sketch1.addConstraint(Sketcher.Constraint("Equal", 62, 75))
sketch1.addConstraint(Sketcher.Constraint("Equal", 75, 76))
sketch1.addConstraint(Sketcher.Constraint("PointOnObject", 3, 2, -2))
sketch1.addConstraint(Sketcher.Constraint("PointOnObject", 7, 2, -1))
sketch1.addConstraint(Sketcher.Constraint("Perpendicular", 2, 6))
sketch1.addConstraint(Sketcher.Constraint("Perpendicular", 6, 10))
sketch1.addConstraint(Sketcher.Constraint("Perpendicular", 10, 14))
sketch1.addConstraint(Sketcher.Constraint("Perpendicular", 14, 26))
sketch1.addConstraint(Sketcher.Constraint("Perpendicular", 26, 28))
sketch1.addConstraint(Sketcher.Constraint("Perpendicular", 28, 34))
sketch1.addConstraint(Sketcher.Constraint("Perpendicular", 34, 44))
sketch1.addConstraint(Sketcher.Constraint("Perpendicular", 44, 50))
sketch1.addConstraint(Sketcher.Constraint("Perpendicular", 50, 60))
sketch1.addConstraint(Sketcher.Constraint("Parallel", 60, 63))
sketch1.addConstraint(Sketcher.Constraint("Perpendicular", 63, 73))
sketch1.addConstraint(Sketcher.Constraint("Horizontal", 5, 3, 11, 3))
sketch1.addConstraint(Sketcher.Constraint("Horizontal", 3, 3, 13, 3))
sketch1.addConstraint(Sketcher.Constraint("Horizontal", 19, 3, 23, 3))
sketch1.addConstraint(Sketcher.Constraint("Horizontal", 16, 3, 31, 3))
sketch1.addConstraint(Sketcher.Constraint("Horizontal", 17, 3, 32, 3))
sketch1.addConstraint(Sketcher.Constraint("Horizontal", 39, 3, 45, 3))
sketch1.addConstraint(Sketcher.Constraint("Horizontal", 45, 3, 48, 3))
sketch1.addConstraint(Sketcher.Constraint("Horizontal", 46, 3, 49, 3))
sketch1.addConstraint(Sketcher.Constraint("Horizontal", 43, 3, 51, 3))
sketch1.addConstraint(Sketcher.Constraint("Horizontal", 41, 3, 53, 3))
sketch1.addConstraint(Sketcher.Constraint("Horizontal", 35, 3, 59, 3))
sketch1.addConstraint(Sketcher.Constraint("Horizontal", 55, 3, 61, 3))
sketch1.addConstraint(Sketcher.Constraint("Horizontal", 66, 3, 70, 3))
sketch1.addConstraint(Sketcher.Constraint("Horizontal", 47, 3, 76, 3))
sketch1.addConstraint(Sketcher.Constraint("Horizontal", 5, 2, 10, 2))
sketch1.addConstraint(Sketcher.Constraint("Vertical", 1, 3, 7, 3))
sketch1.addConstraint(Sketcher.Constraint("Vertical", 21, 3, 27, 3))
sketch1.addConstraint(Sketcher.Constraint("Vertical", 37, 3, 41, 3))
sketch1.addConstraint(Sketcher.Constraint("Vertical", 17, 3, 46, 3))
sketch1.addConstraint(Sketcher.Constraint("Vertical", 16, 3, 47, 3))
sketch1.addConstraint(Sketcher.Constraint("Vertical", 27, 3, 48, 3))
sketch1.addConstraint(Sketcher.Constraint("Vertical", 32, 3, 49, 3))
sketch1.addConstraint(Sketcher.Constraint("Vertical", 25, 3, 64, 3))
sketch1.addConstraint(Sketcher.Constraint("Vertical", 23, 3, 66, 3))
sketch1.addConstraint(Sketcher.Constraint("Vertical", 29, 3, 72, 3))
sketch1.addConstraint(Sketcher.Constraint("Vertical", 31, 3, 76, 3))
sketch1.addConstraint(Sketcher.Constraint("Equal", 40, 54))
sketch1.addConstraint(Sketcher.Constraint("Equal", 0, 4))
sketch1.addConstraint(Sketcher.Constraint("Equal", 56, 20))
sketch1.addConstraint(Sketcher.Constraint("Equal", 71, 36))
sketch1.addConstraint(Sketcher.Constraint("Equal", 22, 67))
sketch1.addConstraint(Sketcher.Constraint("Diameter", 16, 3.2))
sketch1.addConstraint(Sketcher.Constraint("Radius", 1, 4.500001))
sketch1.addConstraint(Sketcher.Constraint("Radius", 19, 1.500001))
sketch1.addConstraint(Sketcher.Constraint("DistanceX", 38, 1, 38, 2, 3.0))
sketch1.addConstraint(Sketcher.Constraint("Distance", 2, 9.000001))
sketch1.addConstraint(Sketcher.Constraint("DistanceX", -1, 1, 18, 3, 29.0))
sketch1.addConstraint(Sketcher.Constraint("DistanceY", -1, 1, 33, 3, 29.0))
sketch1.addConstraint(Sketcher.Constraint("DistanceY", -1, 1, 0, 2, 58.0))
sketch1.addConstraint(Sketcher.Constraint("Radius", 9, 4.999998))
sketch1.addConstraint(Sketcher.Constraint("DistanceX", 24, 2, 24, 1, 8.37868))
sketch1.addConstraint(Sketcher.Constraint("DistanceX", -1, 1, 17, 3, 18.393398))
sketch1.addConstraint(Sketcher.Constraint("DistanceY", -1, 1, 17, 3, 18.393398))
sketch1.addConstraint(Sketcher.Constraint("DistanceY", -1, 1, 19, 3, 6.136349))
sketch1.addConstraint(Sketcher.Constraint("DistanceX", -1, 1, 35, 3, 6.136349))
sketch1.addConstraint(Sketcher.Constraint("DistanceX", -1, 1, 51, 3, 51.863651))
sketch1.addConstraint(Sketcher.Constraint("DistanceY", -1, 1, 64, 3, 51.863651))
sketch1.addConstraint(Sketcher.Constraint("DistanceX", -1, 1, 16, 3, 7.786797))
sketch1.addConstraint(Sketcher.Constraint("DistanceY", -1, 1, 16, 3, 7.786797))
sketch1.addConstraint(Sketcher.Constraint("DistanceX", -1, 1, 31, 3, 50.213203))
sketch1.addConstraint(Sketcher.Constraint("DistanceX", -1, 1, 32, 3, 39.606602))
sketch1.addConstraint(Sketcher.Constraint("DistanceY", -1, 1, 46, 3, 39.606602))
sketch1.addConstraint(Sketcher.Constraint("DistanceY", -1, 1, 47, 3, 50.213203))
pad1 = body.newObject("PartDesign::Pad", "Pad")
pad1.Profile = sketch1
pad1.Length = 2

doc.recompute()
